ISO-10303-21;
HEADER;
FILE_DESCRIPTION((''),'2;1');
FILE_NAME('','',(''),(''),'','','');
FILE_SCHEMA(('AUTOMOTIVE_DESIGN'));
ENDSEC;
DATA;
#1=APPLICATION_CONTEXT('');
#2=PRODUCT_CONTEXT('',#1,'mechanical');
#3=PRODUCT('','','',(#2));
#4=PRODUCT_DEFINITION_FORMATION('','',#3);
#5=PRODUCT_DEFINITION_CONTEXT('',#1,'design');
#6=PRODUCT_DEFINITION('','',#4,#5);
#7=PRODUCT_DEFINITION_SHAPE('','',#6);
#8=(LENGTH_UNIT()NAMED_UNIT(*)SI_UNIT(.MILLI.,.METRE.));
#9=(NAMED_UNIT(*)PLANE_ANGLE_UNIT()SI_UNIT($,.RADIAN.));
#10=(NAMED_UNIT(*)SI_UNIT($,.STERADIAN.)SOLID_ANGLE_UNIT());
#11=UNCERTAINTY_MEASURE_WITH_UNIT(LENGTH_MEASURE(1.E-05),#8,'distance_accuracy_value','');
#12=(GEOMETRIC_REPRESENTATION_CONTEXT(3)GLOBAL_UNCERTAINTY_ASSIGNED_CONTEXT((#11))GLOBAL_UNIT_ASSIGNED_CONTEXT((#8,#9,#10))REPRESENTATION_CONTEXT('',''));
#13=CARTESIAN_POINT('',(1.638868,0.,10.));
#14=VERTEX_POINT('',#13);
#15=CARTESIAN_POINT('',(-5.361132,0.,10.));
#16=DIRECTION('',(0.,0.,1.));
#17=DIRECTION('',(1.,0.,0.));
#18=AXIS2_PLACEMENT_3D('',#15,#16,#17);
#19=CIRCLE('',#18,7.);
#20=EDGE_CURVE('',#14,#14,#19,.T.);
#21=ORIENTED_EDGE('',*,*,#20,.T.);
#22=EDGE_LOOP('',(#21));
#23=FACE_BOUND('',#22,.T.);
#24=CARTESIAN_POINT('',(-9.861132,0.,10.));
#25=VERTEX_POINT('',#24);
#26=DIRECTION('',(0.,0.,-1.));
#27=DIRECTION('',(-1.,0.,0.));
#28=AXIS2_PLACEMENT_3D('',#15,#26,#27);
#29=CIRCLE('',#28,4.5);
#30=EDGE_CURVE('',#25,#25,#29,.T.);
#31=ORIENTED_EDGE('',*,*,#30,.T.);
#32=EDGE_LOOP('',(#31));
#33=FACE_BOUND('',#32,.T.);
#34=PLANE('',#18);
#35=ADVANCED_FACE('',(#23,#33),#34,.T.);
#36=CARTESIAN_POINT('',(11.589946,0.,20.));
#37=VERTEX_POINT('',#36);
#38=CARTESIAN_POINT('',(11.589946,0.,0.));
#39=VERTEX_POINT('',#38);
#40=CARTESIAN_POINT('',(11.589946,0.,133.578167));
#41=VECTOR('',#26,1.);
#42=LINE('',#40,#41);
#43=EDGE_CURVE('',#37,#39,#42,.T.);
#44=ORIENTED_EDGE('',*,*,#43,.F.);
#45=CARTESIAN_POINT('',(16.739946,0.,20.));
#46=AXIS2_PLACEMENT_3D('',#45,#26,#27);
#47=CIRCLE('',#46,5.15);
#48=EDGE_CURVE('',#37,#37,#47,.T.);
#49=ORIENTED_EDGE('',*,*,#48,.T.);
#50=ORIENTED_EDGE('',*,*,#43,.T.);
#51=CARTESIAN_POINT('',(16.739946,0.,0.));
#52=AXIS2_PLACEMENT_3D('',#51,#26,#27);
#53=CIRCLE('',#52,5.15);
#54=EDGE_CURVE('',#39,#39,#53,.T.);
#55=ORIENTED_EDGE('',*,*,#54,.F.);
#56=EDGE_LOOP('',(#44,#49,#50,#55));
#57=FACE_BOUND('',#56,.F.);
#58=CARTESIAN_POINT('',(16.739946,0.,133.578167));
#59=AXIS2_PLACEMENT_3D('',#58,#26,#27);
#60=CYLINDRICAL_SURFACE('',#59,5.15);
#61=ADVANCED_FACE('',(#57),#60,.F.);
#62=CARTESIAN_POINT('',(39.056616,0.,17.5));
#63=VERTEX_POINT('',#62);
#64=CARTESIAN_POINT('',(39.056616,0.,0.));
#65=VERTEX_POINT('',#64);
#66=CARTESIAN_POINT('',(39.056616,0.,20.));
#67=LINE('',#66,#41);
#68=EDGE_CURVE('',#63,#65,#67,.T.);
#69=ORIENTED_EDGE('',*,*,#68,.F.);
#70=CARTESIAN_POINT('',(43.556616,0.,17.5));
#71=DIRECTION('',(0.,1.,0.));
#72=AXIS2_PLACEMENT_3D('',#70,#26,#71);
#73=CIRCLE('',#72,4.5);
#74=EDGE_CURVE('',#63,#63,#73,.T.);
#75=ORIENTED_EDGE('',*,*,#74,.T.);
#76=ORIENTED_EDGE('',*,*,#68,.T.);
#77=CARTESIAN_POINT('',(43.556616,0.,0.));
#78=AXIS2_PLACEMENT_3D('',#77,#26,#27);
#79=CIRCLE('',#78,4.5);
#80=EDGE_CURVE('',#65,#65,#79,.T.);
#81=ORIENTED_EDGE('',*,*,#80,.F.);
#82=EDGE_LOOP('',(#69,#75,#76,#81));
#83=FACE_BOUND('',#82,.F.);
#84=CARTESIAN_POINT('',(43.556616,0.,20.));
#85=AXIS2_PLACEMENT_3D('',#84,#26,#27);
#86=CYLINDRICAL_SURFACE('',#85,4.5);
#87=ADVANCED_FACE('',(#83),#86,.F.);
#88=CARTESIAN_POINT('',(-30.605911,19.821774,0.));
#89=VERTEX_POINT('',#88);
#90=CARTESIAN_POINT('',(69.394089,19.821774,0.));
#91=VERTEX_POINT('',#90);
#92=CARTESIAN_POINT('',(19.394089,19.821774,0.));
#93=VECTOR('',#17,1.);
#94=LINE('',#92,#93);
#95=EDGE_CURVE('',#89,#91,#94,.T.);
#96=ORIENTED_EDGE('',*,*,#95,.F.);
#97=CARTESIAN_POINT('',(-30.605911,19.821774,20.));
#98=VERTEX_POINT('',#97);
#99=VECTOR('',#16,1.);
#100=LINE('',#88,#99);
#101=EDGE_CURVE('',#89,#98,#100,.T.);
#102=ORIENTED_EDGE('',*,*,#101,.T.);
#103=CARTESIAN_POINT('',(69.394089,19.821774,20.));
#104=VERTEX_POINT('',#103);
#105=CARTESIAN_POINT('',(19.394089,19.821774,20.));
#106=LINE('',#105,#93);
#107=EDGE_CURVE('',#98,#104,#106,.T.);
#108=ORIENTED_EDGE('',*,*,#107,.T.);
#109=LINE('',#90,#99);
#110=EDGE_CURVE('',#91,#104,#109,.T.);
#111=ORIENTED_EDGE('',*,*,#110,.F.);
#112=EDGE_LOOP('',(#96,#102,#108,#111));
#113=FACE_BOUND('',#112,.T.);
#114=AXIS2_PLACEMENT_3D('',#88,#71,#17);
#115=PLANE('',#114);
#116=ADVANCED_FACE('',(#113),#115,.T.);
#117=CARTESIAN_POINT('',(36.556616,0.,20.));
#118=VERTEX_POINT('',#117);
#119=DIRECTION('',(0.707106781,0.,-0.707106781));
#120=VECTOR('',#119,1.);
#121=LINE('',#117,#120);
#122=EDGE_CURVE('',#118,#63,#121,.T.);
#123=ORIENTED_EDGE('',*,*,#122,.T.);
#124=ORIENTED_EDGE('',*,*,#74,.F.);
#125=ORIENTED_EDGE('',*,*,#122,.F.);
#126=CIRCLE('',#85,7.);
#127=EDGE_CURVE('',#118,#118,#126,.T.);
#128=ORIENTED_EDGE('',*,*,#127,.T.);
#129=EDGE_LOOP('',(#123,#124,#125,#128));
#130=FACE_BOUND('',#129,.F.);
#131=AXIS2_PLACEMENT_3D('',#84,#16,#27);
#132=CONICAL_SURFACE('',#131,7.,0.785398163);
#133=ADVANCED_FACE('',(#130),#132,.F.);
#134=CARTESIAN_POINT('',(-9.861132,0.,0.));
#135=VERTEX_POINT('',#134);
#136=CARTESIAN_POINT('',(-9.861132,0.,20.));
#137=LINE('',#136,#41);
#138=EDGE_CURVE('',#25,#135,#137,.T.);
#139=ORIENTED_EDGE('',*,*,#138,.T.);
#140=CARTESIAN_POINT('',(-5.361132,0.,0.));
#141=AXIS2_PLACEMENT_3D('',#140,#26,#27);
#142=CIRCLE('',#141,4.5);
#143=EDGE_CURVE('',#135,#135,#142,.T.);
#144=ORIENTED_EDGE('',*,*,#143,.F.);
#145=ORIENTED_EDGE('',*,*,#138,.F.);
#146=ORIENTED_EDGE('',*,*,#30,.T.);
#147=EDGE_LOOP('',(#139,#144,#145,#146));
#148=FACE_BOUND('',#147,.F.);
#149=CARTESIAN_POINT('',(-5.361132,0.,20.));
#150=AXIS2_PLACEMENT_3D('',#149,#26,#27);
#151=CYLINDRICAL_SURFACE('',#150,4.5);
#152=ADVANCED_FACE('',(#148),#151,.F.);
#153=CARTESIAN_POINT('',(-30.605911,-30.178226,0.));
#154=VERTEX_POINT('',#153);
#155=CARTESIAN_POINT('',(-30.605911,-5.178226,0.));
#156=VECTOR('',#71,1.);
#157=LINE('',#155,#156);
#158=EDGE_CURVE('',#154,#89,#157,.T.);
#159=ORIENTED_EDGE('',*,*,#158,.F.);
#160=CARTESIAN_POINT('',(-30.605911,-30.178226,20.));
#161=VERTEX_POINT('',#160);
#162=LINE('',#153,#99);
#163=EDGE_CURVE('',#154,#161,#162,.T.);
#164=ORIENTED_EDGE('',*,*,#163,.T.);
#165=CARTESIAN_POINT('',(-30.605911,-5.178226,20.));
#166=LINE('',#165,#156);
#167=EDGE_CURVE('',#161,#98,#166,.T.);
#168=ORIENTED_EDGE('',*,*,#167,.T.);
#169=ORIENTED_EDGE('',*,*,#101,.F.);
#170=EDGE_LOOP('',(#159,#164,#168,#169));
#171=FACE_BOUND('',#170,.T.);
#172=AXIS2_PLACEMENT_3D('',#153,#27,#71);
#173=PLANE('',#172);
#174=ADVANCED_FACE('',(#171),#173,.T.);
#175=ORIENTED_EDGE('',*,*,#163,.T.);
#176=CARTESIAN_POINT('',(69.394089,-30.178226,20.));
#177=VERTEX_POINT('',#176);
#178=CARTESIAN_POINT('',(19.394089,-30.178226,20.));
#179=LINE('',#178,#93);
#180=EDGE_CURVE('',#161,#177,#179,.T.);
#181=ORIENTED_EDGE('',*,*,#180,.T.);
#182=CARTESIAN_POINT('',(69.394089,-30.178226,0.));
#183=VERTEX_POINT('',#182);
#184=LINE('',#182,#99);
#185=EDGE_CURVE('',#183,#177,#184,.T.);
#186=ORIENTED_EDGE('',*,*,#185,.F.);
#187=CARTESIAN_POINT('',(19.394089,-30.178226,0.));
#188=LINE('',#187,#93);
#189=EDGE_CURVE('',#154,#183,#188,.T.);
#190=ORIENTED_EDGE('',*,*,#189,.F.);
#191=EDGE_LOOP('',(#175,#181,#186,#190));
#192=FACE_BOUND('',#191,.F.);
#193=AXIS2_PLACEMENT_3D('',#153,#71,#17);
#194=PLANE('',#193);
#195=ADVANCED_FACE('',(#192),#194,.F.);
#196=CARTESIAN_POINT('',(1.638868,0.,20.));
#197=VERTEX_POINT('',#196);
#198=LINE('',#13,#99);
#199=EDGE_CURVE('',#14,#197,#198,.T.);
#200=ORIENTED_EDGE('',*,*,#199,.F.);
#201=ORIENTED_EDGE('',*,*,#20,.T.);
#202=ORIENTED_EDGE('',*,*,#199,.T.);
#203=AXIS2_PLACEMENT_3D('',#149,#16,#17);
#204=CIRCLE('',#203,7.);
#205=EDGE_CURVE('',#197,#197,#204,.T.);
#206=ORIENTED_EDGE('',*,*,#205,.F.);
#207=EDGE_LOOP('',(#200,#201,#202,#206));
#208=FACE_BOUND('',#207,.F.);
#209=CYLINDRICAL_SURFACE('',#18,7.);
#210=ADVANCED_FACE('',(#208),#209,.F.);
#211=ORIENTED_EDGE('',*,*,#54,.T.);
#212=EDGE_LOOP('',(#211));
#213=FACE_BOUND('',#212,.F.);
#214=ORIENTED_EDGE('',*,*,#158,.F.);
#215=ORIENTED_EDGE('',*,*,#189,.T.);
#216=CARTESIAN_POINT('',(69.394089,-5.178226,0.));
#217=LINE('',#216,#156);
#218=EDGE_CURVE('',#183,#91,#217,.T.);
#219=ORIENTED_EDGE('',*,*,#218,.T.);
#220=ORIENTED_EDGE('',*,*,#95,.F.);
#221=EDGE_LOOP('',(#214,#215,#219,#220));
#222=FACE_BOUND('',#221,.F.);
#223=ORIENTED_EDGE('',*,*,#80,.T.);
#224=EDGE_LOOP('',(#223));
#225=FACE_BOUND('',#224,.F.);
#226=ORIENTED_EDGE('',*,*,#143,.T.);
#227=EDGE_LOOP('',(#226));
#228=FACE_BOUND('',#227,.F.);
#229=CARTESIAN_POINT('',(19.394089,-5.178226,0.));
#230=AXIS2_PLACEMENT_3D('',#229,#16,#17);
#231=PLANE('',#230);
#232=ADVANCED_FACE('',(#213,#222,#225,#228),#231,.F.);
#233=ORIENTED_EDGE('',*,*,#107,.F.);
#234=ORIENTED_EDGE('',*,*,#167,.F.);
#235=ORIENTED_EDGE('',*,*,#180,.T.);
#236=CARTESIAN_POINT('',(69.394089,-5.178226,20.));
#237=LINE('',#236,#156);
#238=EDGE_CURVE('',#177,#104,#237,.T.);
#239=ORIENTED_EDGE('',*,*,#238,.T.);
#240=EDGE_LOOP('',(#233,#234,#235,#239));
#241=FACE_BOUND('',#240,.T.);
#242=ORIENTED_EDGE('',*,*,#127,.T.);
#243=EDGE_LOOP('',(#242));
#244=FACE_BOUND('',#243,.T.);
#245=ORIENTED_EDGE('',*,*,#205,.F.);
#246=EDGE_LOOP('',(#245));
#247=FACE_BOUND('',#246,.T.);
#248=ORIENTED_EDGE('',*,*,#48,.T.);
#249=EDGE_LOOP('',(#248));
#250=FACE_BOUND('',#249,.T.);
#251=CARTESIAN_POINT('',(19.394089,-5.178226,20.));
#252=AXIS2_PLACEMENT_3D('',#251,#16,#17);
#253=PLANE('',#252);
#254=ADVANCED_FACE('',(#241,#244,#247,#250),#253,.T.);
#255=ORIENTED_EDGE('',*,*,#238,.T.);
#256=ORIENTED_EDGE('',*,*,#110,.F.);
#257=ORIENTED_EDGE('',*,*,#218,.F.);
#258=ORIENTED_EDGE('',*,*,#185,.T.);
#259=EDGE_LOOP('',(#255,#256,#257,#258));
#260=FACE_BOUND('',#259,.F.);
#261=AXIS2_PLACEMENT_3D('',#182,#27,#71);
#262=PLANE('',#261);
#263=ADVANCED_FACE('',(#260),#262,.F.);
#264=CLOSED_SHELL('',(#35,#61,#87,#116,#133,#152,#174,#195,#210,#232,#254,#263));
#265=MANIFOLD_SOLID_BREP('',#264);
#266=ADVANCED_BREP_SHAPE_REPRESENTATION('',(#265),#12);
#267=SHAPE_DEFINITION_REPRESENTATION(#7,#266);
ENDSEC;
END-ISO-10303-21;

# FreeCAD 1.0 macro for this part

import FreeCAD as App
import Part
import Sketcher

V = App.Vector
Q = App.Units.Quantity


def add_polygon(sketch, points):
    """Adds a closed chain of lines whose ends are joined by coincident constraints."""
    first, n = sketch.GeometryCount, len(points)
    for a, b in zip(points, points[1:] + points[:1]):
        sketch.addGeometry(Part.LineSegment(App.Vector(*a, 0), App.Vector(*b, 0)), False)
    for i in range(n):
        sketch.addConstraint(Sketcher.Constraint("Coincident", first + i, 2, first + (i + 1) % n, 1))

doc = App.newDocument("Part")
body = doc.addObject("PartDesign::Body", "Body")

# Sketch on XY plane
sketch1 = body.newObject("Sketcher::SketchObject", "Sketch")
sketch1.AttachmentSupport = (doc.getObject("XY_Plane"), [""])
sketch1.MapMode = "FlatFace"
add_polygon(sketch1, [(-31, 20), (-31, -30), (69, -30), (69, 20)])  # lines 0-3
sketch1.addConstraint([
    Sketcher.Constraint("Vertical", 0),
    Sketcher.Constraint("Horizontal", 1),
    Sketcher.Constraint("Vertical", 2),
    Sketcher.Constraint("Horizontal", 3),
    Sketcher.Constraint("DistanceX", 1, 1, 1, 2, Q("100 mm")),
    Sketcher.Constraint("DistanceY", 0, 2, 0, 1, Q("50 mm")),
    Sketcher.Constraint("DistanceX", 0, 2, -1, 1, Q("30.605911 mm")),
    Sketcher.Constraint("DistanceY", 0, 2, -1, 1, Q("30.178226 mm")),
])
pad1 = body.newObject("PartDesign::Pad", "Pad")
pad1.Profile = sketch1
pad1.Length = 20

# Sketch on XY plane
sketch2 = body.newObject("Sketcher::SketchObject", "Sketch001")
sketch2.AttachmentSupport = (doc.getObject("XY_Plane"), [""])
sketch2.MapMode = "FlatFace"
sketch2.AttachmentOffset = App.Placement(V(0, 0, 20), App.Rotation())
sketch2.addGeometry(Part.Circle(V(-5.4, 0, 0), V(0, 0, 1), 4.5), False)
sketch2.addConstraint([
    Sketcher.Constraint("PointOnObject", 0, 3, -1),
    Sketcher.Constraint("Diameter", 0, Q("9 mm")),
    Sketcher.Constraint("DistanceX", 0, 3, -1, 1, Q("5.361132 mm")),
])
doc.recompute()
hole = body.newObject("PartDesign::Hole", "Hole")
hole.Profile = sketch2
hole.ThreadType = "None"
hole.Diameter = 9
hole.DepthType = "Dimension"
hole.Depth = 30
hole.DrillPoint = "Angled"
hole.DrillPointAngle = 118
hole.HoleCutType = "Counterbore"
hole.HoleCutDiameter = 14
hole.HoleCutDepth = 10

# Sketch on XY plane
sketch3 = body.newObject("Sketcher::SketchObject", "Sketch002")
sketch3.AttachmentSupport = (doc.getObject("XY_Plane"), [""])
sketch3.MapMode = "FlatFace"
sketch3.AttachmentOffset = App.Placement(V(0, 0, 20), App.Rotation())
sketch3.addGeometry(Part.Circle(V(43.6, 0, 0), V(0, 0, 1), 4.5), False)
sketch3.addConstraint([
    Sketcher.Constraint("PointOnObject", 0, 3, -1),
    Sketcher.Constraint("Diameter", 0, Q("9 mm")),
    Sketcher.Constraint("DistanceX", -1, 1, 0, 3, Q("43.556616 mm")),
])
doc.recompute()
hole2 = body.newObject("PartDesign::Hole", "Hole001")
hole2.Profile = sketch3
hole2.ThreadType = "None"
hole2.Diameter = 9
hole2.DepthType = "ThroughAll"
hole2.HoleCutType = "Countersink"
hole2.HoleCutDiameter = 14
hole2.HoleCutCountersinkAngle = 90

# Sketch on XY plane
sketch4 = body.newObject("Sketcher::SketchObject", "Sketch003")
sketch4.AttachmentSupport = (doc.getObject("XY_Plane"), [""])
sketch4.MapMode = "FlatFace"
sketch4.AttachmentOffset = App.Placement(V(0, 0, 20), App.Rotation())
sketch4.addGeometry(Part.Circle(V(17, 0, 0), V(0, 0, 1), 5), False)
sketch4.addConstraint([
    Sketcher.Constraint("PointOnObject", 0, 3, -1),
    Sketcher.Constraint("Diameter", 0, Q("10.3 mm")),
    Sketcher.Constraint("DistanceX", -1, 1, 0, 3, Q("16.739946 mm")),
])
doc.recompute()
hole3 = body.newObject("PartDesign::Hole", "Hole002")
hole3.Profile = sketch4
hole3.ThreadType = "None"
hole3.Diameter = 10.3
hole3.DepthType = "ThroughAll"

doc.recompute()
